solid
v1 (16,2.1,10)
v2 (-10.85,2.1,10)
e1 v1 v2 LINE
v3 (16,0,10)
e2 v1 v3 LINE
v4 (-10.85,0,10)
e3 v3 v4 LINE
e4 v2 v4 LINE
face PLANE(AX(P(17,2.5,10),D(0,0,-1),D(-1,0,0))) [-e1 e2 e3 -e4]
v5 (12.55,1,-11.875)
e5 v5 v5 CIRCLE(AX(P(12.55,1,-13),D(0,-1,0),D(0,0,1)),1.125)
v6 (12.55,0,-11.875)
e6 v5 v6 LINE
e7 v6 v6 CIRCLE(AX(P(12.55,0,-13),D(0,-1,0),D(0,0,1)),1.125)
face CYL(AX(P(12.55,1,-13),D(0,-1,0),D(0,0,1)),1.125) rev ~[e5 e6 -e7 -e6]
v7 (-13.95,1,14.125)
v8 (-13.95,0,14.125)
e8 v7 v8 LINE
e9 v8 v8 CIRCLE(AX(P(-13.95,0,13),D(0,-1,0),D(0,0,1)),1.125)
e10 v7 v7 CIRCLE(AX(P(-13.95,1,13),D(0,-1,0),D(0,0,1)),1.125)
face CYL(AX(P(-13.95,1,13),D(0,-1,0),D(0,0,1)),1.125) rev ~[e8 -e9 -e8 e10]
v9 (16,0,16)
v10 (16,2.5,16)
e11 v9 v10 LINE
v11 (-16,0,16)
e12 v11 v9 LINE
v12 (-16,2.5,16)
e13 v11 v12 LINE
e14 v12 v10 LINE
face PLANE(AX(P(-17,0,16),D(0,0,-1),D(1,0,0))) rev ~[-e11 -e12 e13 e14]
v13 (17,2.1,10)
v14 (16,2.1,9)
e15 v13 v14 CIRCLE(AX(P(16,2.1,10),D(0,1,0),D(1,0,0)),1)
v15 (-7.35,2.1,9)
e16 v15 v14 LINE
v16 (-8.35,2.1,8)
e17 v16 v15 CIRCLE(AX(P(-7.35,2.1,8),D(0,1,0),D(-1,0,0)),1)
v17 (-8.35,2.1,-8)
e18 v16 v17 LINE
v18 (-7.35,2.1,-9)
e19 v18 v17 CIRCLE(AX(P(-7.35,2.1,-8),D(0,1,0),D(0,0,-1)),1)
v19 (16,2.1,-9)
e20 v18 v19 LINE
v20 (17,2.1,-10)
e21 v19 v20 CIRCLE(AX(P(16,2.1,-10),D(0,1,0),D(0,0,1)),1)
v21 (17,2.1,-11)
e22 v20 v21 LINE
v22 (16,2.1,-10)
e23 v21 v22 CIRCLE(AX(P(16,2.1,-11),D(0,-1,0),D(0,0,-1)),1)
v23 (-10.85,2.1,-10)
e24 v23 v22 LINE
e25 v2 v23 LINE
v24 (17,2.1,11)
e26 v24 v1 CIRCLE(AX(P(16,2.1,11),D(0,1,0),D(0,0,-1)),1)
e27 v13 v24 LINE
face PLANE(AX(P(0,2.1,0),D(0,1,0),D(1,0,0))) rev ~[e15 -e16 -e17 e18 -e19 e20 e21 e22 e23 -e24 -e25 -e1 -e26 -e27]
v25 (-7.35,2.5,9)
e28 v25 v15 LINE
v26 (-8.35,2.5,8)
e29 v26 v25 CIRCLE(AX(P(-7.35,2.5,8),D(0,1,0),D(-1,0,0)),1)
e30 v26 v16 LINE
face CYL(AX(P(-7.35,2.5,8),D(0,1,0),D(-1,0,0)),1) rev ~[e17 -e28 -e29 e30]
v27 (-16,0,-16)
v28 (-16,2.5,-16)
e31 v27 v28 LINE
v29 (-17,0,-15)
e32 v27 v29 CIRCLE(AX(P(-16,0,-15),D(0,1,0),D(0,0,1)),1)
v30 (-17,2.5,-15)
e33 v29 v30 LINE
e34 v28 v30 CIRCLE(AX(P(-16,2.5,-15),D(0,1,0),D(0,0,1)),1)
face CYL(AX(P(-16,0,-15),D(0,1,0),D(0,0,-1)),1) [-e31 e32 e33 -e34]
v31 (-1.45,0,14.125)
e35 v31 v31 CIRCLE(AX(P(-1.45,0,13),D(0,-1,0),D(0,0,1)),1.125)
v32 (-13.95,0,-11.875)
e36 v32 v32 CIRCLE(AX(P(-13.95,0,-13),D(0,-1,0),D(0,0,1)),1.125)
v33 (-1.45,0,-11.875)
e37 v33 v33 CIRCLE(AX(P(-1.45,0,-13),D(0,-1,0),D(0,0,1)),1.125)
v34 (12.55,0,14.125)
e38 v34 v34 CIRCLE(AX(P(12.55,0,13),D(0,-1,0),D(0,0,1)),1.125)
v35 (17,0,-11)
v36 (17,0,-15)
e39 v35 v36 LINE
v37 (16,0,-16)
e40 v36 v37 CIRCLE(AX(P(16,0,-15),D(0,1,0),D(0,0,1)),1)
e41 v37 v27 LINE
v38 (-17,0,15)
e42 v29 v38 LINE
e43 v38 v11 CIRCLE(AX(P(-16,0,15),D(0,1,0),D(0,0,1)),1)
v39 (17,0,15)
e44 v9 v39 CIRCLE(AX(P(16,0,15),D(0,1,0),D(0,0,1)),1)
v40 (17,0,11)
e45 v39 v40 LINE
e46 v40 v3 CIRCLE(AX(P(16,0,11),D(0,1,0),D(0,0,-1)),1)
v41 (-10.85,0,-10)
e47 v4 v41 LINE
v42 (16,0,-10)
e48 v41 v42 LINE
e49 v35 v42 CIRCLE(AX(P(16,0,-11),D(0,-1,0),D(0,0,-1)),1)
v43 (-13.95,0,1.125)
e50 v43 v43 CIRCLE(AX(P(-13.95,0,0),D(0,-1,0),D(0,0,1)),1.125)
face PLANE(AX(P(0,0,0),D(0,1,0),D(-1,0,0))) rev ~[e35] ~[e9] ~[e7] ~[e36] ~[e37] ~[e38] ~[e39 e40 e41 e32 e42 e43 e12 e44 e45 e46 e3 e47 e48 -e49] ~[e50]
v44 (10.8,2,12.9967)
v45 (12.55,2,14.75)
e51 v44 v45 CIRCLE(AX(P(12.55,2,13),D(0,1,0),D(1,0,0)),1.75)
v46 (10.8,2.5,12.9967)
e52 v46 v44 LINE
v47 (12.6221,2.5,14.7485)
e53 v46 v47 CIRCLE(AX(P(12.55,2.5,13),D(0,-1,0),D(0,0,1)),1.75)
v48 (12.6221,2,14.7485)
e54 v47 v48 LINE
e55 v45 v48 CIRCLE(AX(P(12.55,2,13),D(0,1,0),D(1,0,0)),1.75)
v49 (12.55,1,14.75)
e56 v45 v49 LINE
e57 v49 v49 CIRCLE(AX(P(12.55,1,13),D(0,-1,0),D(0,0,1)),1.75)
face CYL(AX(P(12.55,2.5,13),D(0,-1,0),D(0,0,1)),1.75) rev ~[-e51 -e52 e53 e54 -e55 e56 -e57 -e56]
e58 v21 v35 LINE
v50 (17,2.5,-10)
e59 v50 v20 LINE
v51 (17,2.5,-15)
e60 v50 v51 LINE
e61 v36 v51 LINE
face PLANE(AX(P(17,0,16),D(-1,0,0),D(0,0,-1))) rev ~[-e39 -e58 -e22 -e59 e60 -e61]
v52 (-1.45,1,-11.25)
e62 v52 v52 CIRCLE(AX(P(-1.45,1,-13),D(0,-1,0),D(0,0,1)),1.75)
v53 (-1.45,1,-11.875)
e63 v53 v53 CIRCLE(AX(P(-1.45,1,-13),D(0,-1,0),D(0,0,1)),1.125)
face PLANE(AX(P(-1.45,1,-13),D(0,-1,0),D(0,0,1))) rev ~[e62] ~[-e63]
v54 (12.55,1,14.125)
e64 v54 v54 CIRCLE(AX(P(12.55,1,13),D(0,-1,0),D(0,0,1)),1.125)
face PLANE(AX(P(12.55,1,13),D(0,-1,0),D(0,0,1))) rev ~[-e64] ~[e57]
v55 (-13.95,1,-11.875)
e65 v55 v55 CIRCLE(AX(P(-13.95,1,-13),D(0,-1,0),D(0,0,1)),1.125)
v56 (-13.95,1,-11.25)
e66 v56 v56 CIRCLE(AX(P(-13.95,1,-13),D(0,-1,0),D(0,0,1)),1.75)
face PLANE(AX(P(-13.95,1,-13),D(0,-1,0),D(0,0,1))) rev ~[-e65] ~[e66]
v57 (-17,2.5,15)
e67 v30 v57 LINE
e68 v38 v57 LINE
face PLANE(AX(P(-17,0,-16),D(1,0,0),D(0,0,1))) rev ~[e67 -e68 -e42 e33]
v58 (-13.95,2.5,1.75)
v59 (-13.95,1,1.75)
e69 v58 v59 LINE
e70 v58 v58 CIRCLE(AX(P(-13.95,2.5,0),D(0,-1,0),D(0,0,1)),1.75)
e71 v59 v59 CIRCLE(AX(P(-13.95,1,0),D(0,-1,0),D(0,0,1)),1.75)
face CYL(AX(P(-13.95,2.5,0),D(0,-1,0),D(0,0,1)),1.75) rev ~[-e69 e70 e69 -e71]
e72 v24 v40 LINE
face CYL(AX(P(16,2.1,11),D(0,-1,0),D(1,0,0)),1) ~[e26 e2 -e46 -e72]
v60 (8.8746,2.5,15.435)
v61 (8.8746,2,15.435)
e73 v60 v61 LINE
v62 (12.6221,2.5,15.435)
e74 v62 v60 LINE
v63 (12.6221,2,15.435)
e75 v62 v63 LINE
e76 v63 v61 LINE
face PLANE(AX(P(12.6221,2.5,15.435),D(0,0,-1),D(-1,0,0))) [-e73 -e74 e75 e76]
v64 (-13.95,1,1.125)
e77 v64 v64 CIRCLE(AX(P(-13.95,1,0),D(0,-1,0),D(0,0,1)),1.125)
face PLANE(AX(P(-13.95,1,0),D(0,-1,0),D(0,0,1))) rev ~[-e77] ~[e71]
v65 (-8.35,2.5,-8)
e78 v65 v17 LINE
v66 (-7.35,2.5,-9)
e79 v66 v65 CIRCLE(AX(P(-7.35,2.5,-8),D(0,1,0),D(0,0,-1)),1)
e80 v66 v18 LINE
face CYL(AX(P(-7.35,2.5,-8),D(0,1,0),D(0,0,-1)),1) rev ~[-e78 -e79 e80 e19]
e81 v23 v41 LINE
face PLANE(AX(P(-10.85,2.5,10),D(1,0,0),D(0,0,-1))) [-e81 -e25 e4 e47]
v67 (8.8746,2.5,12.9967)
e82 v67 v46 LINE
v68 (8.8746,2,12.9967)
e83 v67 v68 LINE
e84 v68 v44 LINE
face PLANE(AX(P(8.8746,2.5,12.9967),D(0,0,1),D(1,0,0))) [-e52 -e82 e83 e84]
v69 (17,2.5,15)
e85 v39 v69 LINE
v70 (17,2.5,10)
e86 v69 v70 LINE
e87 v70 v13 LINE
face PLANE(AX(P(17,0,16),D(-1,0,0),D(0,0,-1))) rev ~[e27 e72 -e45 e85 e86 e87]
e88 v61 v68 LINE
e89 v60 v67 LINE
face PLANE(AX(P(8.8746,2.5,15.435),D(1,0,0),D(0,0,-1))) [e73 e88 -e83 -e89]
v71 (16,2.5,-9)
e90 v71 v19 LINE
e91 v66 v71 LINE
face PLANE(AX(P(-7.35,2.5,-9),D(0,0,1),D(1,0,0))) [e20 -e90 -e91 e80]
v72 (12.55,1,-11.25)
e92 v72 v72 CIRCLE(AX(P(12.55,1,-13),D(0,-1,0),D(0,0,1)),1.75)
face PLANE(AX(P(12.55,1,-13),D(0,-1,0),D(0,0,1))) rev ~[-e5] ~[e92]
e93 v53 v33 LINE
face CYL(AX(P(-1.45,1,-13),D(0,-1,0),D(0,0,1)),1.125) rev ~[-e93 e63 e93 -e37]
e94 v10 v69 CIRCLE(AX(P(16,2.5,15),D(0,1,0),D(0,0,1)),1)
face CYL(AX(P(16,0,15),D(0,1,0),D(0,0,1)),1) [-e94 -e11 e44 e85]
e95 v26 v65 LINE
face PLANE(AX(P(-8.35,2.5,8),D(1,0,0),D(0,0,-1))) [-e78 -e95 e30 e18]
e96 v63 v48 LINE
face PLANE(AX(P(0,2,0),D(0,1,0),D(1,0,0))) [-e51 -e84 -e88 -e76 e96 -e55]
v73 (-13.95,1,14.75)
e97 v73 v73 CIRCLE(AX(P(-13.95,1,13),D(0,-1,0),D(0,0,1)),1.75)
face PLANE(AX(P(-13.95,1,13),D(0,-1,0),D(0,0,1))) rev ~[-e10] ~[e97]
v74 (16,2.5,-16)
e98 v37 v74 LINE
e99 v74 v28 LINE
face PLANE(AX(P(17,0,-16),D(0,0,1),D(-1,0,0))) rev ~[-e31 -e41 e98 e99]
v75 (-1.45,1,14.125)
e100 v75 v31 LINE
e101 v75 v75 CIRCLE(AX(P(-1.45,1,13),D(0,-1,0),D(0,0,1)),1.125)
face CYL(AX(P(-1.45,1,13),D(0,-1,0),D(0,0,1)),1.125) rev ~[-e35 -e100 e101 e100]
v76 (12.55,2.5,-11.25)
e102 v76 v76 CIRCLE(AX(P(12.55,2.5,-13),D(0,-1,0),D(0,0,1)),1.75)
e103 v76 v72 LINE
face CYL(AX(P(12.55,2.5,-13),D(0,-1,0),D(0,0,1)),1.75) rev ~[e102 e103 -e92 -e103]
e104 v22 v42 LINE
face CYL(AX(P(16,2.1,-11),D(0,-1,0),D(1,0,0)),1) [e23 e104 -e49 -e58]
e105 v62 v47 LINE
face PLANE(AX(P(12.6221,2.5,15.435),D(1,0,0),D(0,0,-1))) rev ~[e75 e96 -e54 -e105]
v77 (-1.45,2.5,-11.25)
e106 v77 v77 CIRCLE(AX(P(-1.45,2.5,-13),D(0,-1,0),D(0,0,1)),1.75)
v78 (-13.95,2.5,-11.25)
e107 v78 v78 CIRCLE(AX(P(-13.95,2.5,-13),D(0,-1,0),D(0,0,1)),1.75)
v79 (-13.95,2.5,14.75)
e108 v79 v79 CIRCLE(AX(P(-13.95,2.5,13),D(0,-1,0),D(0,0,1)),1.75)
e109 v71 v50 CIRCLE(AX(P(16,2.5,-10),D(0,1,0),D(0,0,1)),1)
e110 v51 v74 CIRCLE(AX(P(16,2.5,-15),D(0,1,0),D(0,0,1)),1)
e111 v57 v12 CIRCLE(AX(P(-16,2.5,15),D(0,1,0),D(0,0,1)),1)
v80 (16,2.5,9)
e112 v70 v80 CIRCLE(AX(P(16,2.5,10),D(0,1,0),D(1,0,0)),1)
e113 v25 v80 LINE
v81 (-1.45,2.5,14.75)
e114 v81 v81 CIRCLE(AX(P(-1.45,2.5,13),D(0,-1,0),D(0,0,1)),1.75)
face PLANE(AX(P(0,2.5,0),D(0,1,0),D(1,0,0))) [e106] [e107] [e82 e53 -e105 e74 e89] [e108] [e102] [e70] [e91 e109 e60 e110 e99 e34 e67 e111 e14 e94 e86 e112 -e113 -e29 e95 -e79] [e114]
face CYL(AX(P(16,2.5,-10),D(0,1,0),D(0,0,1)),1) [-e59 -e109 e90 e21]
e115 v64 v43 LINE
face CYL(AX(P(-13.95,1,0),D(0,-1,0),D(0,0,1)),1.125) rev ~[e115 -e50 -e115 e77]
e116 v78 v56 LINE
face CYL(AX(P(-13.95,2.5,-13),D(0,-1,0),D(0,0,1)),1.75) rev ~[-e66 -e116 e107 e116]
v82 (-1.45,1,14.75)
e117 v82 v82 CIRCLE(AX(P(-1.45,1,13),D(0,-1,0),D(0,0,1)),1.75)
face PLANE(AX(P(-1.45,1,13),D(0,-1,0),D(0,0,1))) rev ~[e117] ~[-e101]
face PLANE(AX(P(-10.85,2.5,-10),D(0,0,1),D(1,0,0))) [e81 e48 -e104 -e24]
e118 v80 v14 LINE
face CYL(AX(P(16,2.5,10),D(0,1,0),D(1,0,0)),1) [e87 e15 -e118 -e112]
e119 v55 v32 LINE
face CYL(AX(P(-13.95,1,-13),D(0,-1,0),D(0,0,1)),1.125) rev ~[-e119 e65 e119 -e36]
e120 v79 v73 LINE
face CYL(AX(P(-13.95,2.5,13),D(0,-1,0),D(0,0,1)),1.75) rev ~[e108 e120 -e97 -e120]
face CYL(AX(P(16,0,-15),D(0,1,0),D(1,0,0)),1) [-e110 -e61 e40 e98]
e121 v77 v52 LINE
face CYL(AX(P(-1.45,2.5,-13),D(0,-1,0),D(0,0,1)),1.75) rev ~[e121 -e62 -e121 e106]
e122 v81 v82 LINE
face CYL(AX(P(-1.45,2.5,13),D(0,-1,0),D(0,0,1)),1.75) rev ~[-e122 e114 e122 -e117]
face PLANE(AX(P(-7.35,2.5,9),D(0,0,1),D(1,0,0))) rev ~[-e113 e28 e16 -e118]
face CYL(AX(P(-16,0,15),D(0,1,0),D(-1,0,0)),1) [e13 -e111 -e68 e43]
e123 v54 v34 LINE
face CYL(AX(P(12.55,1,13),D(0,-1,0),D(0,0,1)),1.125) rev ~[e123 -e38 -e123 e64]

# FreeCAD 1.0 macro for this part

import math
import FreeCAD as App
import Part
import Sketcher


def edges_at(feature, points):
    """Names of the edges that pass closest to the given points."""
    edges = feature.Shape.Edges
    near = lambda p: min(range(len(edges)), key=lambda i: edges[i].distToShape(Part.Vertex(*p))[0])
    return sorted({f"Edge{near(p) + 1}" for p in points})

doc = App.newDocument("Part")
body = doc.addObject("PartDesign::Body", "Body")

sketch1 = body.newObject("Sketcher::SketchObject", "Sketch")
sketch1.AttachmentSupport = (doc.getObject("XZ_Plane"), [""])
sketch1.MapMode = "FlatFace"
sketch1.addGeometry(Part.LineSegment(App.Vector(17, 16, 0), App.Vector(17, -16, 0)), False)
sketch1.addGeometry(Part.LineSegment(App.Vector(17, -16, 0), App.Vector(-17, -16, 0)), False)
sketch1.addGeometry(Part.LineSegment(App.Vector(-17, -16, 0), App.Vector(-17, 16, 0)), False)
sketch1.addGeometry(Part.LineSegment(App.Vector(-17, 16, 0), App.Vector(17, 16, 0)), False)
sketch1.addConstraint(Sketcher.Constraint("Coincident", 0, 2, 1, 1))
sketch1.addConstraint(Sketcher.Constraint("Coincident", 1, 2, 2, 1))
sketch1.addConstraint(Sketcher.Constraint("Coincident", 2, 2, 3, 1))
sketch1.addConstraint(Sketcher.Constraint("Coincident", 3, 2, 0, 1))
sketch1.addConstraint(Sketcher.Constraint("Vertical", 0))
sketch1.addConstraint(Sketcher.Constraint("Horizontal", 1))
sketch1.addConstraint(Sketcher.Constraint("Vertical", 2))
sketch1.addConstraint(Sketcher.Constraint("Horizontal", 3))
sketch1.addConstraint(Sketcher.Constraint("Symmetric", 0, 2, 2, 2, -1, 1))
sketch1.addConstraint(Sketcher.Constraint("DistanceX", 1, 2, 1, 1, 34.0))
sketch1.addConstraint(Sketcher.Constraint("DistanceY", 0, 2, 0, 1, 32.0))
pad1 = body.newObject("PartDesign::Pad", "Pad")
pad1.Profile = sketch1
pad1.Length = 2.5
pad1.Reversed = True

sketch2 = body.newObject("Sketcher::SketchObject", "Sketch001")
sketch2.AttachmentSupport = (doc.getObject("XZ_Plane"), [""])
sketch2.MapMode = "FlatFace"
sketch2.AttachmentOffset = App.Placement(App.Vector(0, 0, -2.5), App.Rotation())
sketch2.addGeometry(Part.LineSegment(App.Vector(-10.85, 10, 0), App.Vector(17, 10, 0)), False)
sketch2.addGeometry(Part.LineSegment(App.Vector(17, 10, 0), App.Vector(17, -10, 0)), False)
sketch2.addGeometry(Part.LineSegment(App.Vector(17, -10, 0), App.Vector(-10.85, -10, 0)), False)
sketch2.addGeometry(Part.LineSegment(App.Vector(-10.85, -10, 0), App.Vector(-10.85, 10, 0)), False)
sketch2.addConstraint(Sketcher.Constraint("Coincident", 0, 2, 1, 1))
sketch2.addConstraint(Sketcher.Constraint("Coincident", 1, 2, 2, 1))
sketch2.addConstraint(Sketcher.Constraint("Coincident", 2, 2, 3, 1))
sketch2.addConstraint(Sketcher.Constraint("Coincident", 3, 2, 0, 1))
sketch2.addConstraint(Sketcher.Constraint("Horizontal", 0))
sketch2.addConstraint(Sketcher.Constraint("Vertical", 1))
sketch2.addConstraint(Sketcher.Constraint("Horizontal", 2))
sketch2.addConstraint(Sketcher.Constraint("Vertical", 3))
sketch2.addConstraint(Sketcher.Constraint("DistanceY", 1, 2, 1, 1, 20.0))
sketch2.addConstraint(Sketcher.Constraint("DistanceY", -1, 1, 0, 2, 10.0))
sketch2.addConstraint(Sketcher.Constraint("DistanceX", 0, 1, 0, 2, 27.85))
sketch2.addConstraint(Sketcher.Constraint("DistanceX", -1, 1, 0, 2, 17.0))
pocket1 = body.newObject("PartDesign::Pocket", "Pocket")
pocket1.Profile = sketch2
pocket1.Type = "ThroughAll"
pocket1.Reversed = True

sketch3 = body.newObject("Sketcher::SketchObject", "Sketch002")
sketch3.AttachmentSupport = (doc.getObject("XZ_Plane"), [""])
sketch3.MapMode = "FlatFace"
sketch3.AttachmentOffset = App.Placement(App.Vector(0, 0, -2.5), App.Rotation())
sketch3.addGeometry(Part.LineSegment(App.Vector(-10.85, 10, 0), App.Vector(17, 10, 0)), False)
sketch3.addGeometry(Part.ArcOfCircle(Part.Circle(App.Vector(16, 10, 0), App.Vector(0, 0, 1), 1), math.radians(-90), math.radians(0)), False)
sketch3.addGeometry(Part.LineSegment(App.Vector(16, 9, 0), App.Vector(-7.35, 9, 0)), False)
sketch3.addGeometry(Part.ArcOfCircle(Part.Circle(App.Vector(-7.35, 8, 0), App.Vector(0, 0, 1), 1), math.radians(90), math.radians(180)), False)
sketch3.addGeometry(Part.LineSegment(App.Vector(-8.35, 8, 0), App.Vector(-8.35, -8, 0)), False)
sketch3.addGeometry(Part.ArcOfCircle(Part.Circle(App.Vector(-7.35, -8, 0), App.Vector(0, 0, 1), 1), math.radians(180), math.radians(270)), False)
sketch3.addGeometry(Part.LineSegment(App.Vector(-7.35, -9, 0), App.Vector(16, -9, 0)), False)
sketch3.addGeometry(Part.ArcOfCircle(Part.Circle(App.Vector(16, -10, 0), App.Vector(0, 0, 1), 1), math.radians(0), math.radians(90)), False)
sketch3.addGeometry(Part.LineSegment(App.Vector(17, -10, 0), App.Vector(-10.85, -10, 0)), False)
sketch3.addGeometry(Part.LineSegment(App.Vector(-10.85, -10, 0), App.Vector(-10.85, 10, 0)), False)
sketch3.addConstraint(Sketcher.Constraint("Coincident", 0, 2, 1, 2))
sketch3.addConstraint(Sketcher.Constraint("Tangent", 1, 1, 2, 1))
sketch3.addConstraint(Sketcher.Constraint("Tangent", 2, 2, 3, 1))
sketch3.addConstraint(Sketcher.Constraint("Tangent", 3, 2, 4, 1))
sketch3.addConstraint(Sketcher.Constraint("Tangent", 4, 2, 5, 1))
sketch3.addConstraint(Sketcher.Constraint("Tangent", 5, 2, 6, 1))
sketch3.addConstraint(Sketcher.Constraint("Tangent", 6, 2, 7, 2))
sketch3.addConstraint(Sketcher.Constraint("Coincident", 7, 1, 8, 1))
sketch3.addConstraint(Sketcher.Constraint("Coincident", 8, 2, 9, 1))
sketch3.addConstraint(Sketcher.Constraint("Coincident", 9, 2, 0, 1))
sketch3.addConstraint(Sketcher.Constraint("Horizontal", 0))
sketch3.addConstraint(Sketcher.Constraint("Horizontal", 2))
sketch3.addConstraint(Sketcher.Constraint("Vertical", 4))
sketch3.addConstraint(Sketcher.Constraint("Horizontal", 6))
sketch3.addConstraint(Sketcher.Constraint("Horizontal", 8))
sketch3.addConstraint(Sketcher.Constraint("Vertical", 9))
sketch3.addConstraint(Sketcher.Constraint("Equal", 1, 3))
sketch3.addConstraint(Sketcher.Constraint("Equal", 3, 5))
sketch3.addConstraint(Sketcher.Constraint("Equal", 5, 7))
sketch3.addConstraint(Sketcher.Constraint("Symmetric", 1, 3, 7, 3, -1))
sketch3.addConstraint(Sketcher.Constraint("Horizontal", 1, 3, 0, 2))
sketch3.addConstraint(Sketcher.Constraint("Radius", 1, 1.0))
sketch3.addConstraint(Sketcher.Constraint("DistanceY", 7, 1, 6, 2, 1.0))
sketch3.addConstraint(Sketcher.Constraint("DistanceX", 8, 2, 4, 2, 2.5))
sketch3.addConstraint(Sketcher.Constraint("DistanceY", 4, 2, 4, 1, 16.0))
sketch3.addConstraint(Sketcher.Constraint("DistanceX", -1, 1, 1, 3, 16.0))
sketch3.addConstraint(Sketcher.Constraint("DistanceX", 0, 1, 0, 2, 27.85))
pad2 = body.newObject("PartDesign::Pad", "Pad001")
pad2.Profile = sketch3
pad2.Length = 0.4

sketch4 = body.newObject("Sketcher::SketchObject", "Sketch003")
sketch4.AttachmentSupport = (doc.getObject("XZ_Plane"), [""])
sketch4.MapMode = "FlatFace"
sketch4.AttachmentOffset = App.Placement(App.Vector(0, 0, -2.5), App.Rotation())
sketch4.addGeometry(Part.Circle(App.Vector(12.55, 13, 0), App.Vector(0, 0, 1), 1.125), False)
sketch4.addGeometry(Part.Circle(App.Vector(-13.95, 13, 0), App.Vector(0, 0, 1), 1.125), False)
sketch4.addGeometry(Part.Circle(App.Vector(-13.95, -13, 0), App.Vector(0, 0, 1), 1.125), False)
sketch4.addGeometry(Part.Circle(App.Vector(12.55, -13, 0), App.Vector(0, 0, 1), 1.125), False)
sketch4.addGeometry(Part.Circle(App.Vector(-1.45, 13, 0), App.Vector(0, 0, 1), 1.125), False)
sketch4.addGeometry(Part.Circle(App.Vector(-1.45, -13, 0), App.Vector(0, 0, 1), 1.125), False)
sketch4.addGeometry(Part.Circle(App.Vector(-13.95, 0, 0), App.Vector(0, 0, 1), 1.125), False)
sketch4.addConstraint(Sketcher.Constraint("Equal", 0, 1))
sketch4.addConstraint(Sketcher.Constraint("Equal", 1, 2))
sketch4.addConstraint(Sketcher.Constraint("Equal", 2, 3))
sketch4.addConstraint(Sketcher.Constraint("Equal", 3, 4))
sketch4.addConstraint(Sketcher.Constraint("Equal", 4, 5))
sketch4.addConstraint(Sketcher.Constraint("Equal", 5, 6))
sketch4.addConstraint(Sketcher.Constraint("Symmetric", 1, 3, 2, 3, -1))
sketch4.addConstraint(Sketcher.Constraint("Symmetric", 0, 3, 3, 3, -1))
sketch4.addConstraint(Sketcher.Constraint("Symmetric", 4, 3, 5, 3, -1))
sketch4.addConstraint(Sketcher.Constraint("PointOnObject", 6, 3, -1))
sketch4.addConstraint(Sketcher.Constraint("Horizontal", 0, 3, 1, 3))
sketch4.addConstraint(Sketcher.Constraint("Horizontal", 1, 3, 4, 3))
sketch4.addConstraint(Sketcher.Constraint("Vertical", 2, 3, 6, 3))
sketch4.addConstraint(Sketcher.Constraint("Diameter", 0, 2.25))
sketch4.addConstraint(Sketcher.Constraint("DistanceY", -1, 1, 0, 3, 13.0))
sketch4.addConstraint(Sketcher.Constraint("DistanceX", 4, 3, 0, 3, 14.0))
sketch4.addConstraint(Sketcher.Constraint("DistanceX", 1, 3, 0, 3, 26.5))
sketch4.addConstraint(Sketcher.Constraint("DistanceX", -1, 1, 0, 3, 12.55))
doc.recompute()
hole = body.newObject("PartDesign::Hole", "Hole")
hole.Profile = sketch4
hole.ThreadType = "None"
hole.Diameter = 2.25
hole.DepthType = "ThroughAll"
hole.HoleCutType = "Counterbore"
hole.HoleCutDiameter = 3.5
hole.HoleCutDepth = 1.5
hole.Reversed = True
doc.recompute()

fillet = body.newObject("PartDesign::Fillet", "Fillet")
fillet.Base = (hole, edges_at(hole, [
    (-17, 1.25, 16),
    (-17, 1.25, -16),
    (17, 1.05, 10),
    (17, 1.25, 16),
    (17, 1.05, -10),
    (17, 1.25, -16),
]))
fillet.Radius = 1

sketch5 = body.newObject("Sketcher::SketchObject", "Sketch004")
sketch5.AttachmentSupport = (doc.getObject("XZ_Plane"), [""])
sketch5.MapMode = "FlatFace"
sketch5.AttachmentOffset = App.Placement(App.Vector(0, 0, -2.5), App.Rotation())
sketch5.addGeometry(Part.ArcOfCircle(Part.Circle(App.Vector(12.55, 13, 0), App.Vector(0, 0, 1), 1.75), math.radians(87.638727), math.radians(180.108043)), False)
sketch5.addGeometry(Part.LineSegment(App.Vector(10.8, 12.9967, 0), App.Vector(8.8746, 12.9967, 0)), False)
sketch5.addGeometry(Part.LineSegment(App.Vector(8.8746, 12.9967, 0), App.Vector(8.8746, 15.435, 0)), False)
sketch5.addGeometry(Part.LineSegment(App.Vector(8.8746, 15.435, 0), App.Vector(12.6221, 15.435, 0)), False)
sketch5.addGeometry(Part.LineSegment(App.Vector(12.6221, 15.435, 0), App.Vector(12.6221, 14.7485, 0)), False)
sketch5.addConstraint(Sketcher.Constraint("Coincident", 0, 2, 1, 1))
sketch5.addConstraint(Sketcher.Constraint("Coincident", 1, 2, 2, 1))
sketch5.addConstraint(Sketcher.Constraint("Coincident", 2, 2, 3, 1))
sketch5.addConstraint(Sketcher.Constraint("Coincident", 3, 2, 4, 1))
sketch5.addConstraint(Sketcher.Constraint("Coincident", 4, 2, 0, 1))
sketch5.addConstraint(Sketcher.Constraint("Horizontal", 1))
sketch5.addConstraint(Sketcher.Constraint("Vertical", 2))
sketch5.addConstraint(Sketcher.Constraint("Horizontal", 3))
sketch5.addConstraint(Sketcher.Constraint("Vertical", 4))
sketch5.addConstraint(Sketcher.Constraint("Radius", 0, 1.75))
sketch5.addConstraint(Sketcher.Constraint("DistanceY", -1, 1, 0, 3, 13.0))
sketch5.addConstraint(Sketcher.Constraint("DistanceX", -1, 1, 0, 2, 10.8))
sketch5.addConstraint(Sketcher.Constraint("DistanceX", 1, 2, 1, 1, 1.9254))
sketch5.addConstraint(Sketcher.Constraint("DistanceX", 3, 1, 3, 2, 3.7475))
sketch5.addConstraint(Sketcher.Constraint("DistanceY", 2, 1, 2, 2, 2.4383))
sketch5.addConstraint(Sketcher.Constraint("DistanceY", 4, 2, 4, 1, 0.6865))
pocket2 = body.newObject("PartDesign::Pocket", "Pocket001")
pocket2.Profile = sketch5
pocket2.Length = 0.5
pocket2.Reversed = True

doc.recompute()
